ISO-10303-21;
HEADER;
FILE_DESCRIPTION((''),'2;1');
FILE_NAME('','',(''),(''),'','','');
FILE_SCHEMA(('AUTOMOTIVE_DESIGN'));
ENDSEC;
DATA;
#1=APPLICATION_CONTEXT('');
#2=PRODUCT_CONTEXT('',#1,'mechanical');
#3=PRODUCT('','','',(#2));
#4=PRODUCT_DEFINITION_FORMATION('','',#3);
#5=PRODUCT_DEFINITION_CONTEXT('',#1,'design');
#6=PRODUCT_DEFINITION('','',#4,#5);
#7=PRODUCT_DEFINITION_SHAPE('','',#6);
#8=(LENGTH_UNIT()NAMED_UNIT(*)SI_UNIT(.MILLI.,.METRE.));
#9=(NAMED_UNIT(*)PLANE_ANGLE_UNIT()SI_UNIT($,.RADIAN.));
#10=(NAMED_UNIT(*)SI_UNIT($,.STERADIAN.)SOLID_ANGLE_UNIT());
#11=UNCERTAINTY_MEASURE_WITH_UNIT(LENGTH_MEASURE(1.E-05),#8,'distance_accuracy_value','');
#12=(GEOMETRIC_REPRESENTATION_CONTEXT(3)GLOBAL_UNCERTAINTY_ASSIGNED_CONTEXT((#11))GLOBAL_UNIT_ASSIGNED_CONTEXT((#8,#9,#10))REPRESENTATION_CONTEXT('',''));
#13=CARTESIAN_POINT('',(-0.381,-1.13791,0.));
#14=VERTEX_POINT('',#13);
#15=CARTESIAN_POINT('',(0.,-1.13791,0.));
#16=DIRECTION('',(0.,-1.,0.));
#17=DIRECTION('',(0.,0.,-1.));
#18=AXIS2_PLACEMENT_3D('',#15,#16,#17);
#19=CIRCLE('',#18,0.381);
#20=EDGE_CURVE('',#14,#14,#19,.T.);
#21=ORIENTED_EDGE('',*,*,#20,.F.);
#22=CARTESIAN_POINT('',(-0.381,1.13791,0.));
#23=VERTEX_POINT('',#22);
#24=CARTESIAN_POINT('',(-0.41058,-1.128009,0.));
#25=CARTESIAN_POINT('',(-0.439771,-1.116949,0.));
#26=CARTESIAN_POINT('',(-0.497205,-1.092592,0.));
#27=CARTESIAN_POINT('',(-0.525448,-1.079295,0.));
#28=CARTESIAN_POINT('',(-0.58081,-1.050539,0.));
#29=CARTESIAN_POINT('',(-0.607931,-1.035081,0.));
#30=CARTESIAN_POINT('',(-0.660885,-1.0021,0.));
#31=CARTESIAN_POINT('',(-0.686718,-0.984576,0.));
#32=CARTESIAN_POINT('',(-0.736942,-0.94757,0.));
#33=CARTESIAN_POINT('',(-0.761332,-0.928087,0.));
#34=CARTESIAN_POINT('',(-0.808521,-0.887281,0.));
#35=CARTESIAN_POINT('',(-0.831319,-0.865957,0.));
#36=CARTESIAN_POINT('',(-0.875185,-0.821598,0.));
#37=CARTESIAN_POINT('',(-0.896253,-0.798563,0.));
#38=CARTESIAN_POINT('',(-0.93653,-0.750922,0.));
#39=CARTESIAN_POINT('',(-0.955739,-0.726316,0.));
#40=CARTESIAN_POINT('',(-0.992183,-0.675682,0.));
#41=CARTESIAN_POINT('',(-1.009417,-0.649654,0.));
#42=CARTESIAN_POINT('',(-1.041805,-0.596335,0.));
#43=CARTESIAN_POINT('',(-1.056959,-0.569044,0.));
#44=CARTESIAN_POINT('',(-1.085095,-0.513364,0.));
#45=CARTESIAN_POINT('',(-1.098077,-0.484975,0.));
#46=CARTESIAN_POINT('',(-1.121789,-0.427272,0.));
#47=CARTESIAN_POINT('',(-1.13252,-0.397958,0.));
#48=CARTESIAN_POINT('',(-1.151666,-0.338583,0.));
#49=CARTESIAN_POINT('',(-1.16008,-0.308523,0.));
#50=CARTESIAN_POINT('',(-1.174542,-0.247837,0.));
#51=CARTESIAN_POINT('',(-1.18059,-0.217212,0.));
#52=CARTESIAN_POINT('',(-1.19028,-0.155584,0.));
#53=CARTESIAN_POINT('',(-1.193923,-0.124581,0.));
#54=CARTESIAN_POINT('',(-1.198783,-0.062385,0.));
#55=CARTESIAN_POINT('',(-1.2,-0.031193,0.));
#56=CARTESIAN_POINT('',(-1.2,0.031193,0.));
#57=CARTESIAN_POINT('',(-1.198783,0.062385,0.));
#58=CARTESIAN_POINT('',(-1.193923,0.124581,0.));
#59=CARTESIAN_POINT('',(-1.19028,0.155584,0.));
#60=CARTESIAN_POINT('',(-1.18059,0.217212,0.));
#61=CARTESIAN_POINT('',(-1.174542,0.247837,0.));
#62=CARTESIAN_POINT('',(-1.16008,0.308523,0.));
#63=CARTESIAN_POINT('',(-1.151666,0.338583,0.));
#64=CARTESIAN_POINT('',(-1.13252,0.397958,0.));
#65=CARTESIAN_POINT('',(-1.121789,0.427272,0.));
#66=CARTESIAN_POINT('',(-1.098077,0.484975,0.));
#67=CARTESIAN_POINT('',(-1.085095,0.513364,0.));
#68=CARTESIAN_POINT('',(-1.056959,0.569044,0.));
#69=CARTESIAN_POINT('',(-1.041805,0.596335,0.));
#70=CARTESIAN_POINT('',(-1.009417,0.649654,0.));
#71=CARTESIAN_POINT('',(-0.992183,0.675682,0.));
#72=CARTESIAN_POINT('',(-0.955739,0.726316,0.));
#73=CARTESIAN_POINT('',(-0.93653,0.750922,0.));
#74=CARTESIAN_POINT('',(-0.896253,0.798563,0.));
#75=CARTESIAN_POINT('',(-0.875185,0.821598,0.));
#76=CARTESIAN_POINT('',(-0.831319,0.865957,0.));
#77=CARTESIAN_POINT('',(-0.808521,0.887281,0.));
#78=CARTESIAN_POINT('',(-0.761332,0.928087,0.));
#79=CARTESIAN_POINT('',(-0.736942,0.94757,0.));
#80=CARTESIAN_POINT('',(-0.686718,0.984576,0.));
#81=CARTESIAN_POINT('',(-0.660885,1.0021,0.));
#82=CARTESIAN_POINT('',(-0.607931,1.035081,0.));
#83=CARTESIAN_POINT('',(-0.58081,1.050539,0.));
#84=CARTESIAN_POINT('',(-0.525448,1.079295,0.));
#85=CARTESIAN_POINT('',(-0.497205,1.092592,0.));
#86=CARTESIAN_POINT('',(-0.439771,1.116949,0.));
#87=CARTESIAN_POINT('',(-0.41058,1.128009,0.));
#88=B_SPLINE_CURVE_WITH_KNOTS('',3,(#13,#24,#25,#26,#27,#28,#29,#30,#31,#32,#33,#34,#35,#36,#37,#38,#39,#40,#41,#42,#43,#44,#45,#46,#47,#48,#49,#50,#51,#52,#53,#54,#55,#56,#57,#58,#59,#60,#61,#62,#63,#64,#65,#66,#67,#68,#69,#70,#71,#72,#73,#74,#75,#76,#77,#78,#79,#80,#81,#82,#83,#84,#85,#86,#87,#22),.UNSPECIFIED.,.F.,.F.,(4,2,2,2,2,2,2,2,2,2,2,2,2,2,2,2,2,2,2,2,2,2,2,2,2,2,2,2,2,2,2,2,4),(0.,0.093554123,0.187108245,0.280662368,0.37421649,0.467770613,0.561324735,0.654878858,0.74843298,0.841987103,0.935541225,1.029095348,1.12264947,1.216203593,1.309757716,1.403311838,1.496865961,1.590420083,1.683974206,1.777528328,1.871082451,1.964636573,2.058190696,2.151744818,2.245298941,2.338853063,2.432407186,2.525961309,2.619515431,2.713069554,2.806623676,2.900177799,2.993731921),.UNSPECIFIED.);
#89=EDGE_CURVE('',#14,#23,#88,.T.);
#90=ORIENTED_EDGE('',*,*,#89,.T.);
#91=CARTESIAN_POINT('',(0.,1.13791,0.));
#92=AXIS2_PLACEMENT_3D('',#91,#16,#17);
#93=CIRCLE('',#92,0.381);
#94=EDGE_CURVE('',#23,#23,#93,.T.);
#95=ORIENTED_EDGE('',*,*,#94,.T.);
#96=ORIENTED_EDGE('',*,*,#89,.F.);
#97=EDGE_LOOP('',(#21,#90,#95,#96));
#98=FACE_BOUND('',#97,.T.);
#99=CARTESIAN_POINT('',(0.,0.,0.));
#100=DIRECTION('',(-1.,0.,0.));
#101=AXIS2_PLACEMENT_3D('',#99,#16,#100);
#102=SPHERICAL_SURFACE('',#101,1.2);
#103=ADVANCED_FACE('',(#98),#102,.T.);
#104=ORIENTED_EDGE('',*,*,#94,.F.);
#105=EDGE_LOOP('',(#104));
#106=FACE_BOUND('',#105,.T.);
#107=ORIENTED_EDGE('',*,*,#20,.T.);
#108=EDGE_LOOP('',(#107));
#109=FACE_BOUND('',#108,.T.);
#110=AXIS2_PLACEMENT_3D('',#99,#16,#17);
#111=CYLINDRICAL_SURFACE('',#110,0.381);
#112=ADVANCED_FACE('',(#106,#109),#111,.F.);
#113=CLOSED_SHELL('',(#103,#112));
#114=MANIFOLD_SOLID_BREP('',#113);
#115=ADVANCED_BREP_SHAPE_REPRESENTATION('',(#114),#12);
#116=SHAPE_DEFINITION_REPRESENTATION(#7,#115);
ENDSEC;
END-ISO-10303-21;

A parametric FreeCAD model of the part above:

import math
import FreeCAD as App
import Part
import Sketcher
from FreeCAD import Vector

doc = App.newDocument("Part")
body = doc.addObject("PartDesign::Body", "Body")

# Sketch on XY plane
sketch1 = body.newObject("Sketcher::SketchObject", "Sketch")
sketch1.AttachmentSupport = (doc.getObject("XY_Plane"), [""])
sketch1.MapMode = "FlatFace"
sketch1.addGeometry([
    Part.LineSegment(Vector(-0.381, -1.13791, 0), Vector(-0.381, 1.13791, 0)),
    Part.ArcOfCircle(Part.Circle(Vector(0, 0, 0), Vector(0, 0, 1), 1.2), math.radians(108.511803), math.radians(251.488197)),
], False)
sketch1.addConstraint([
    Sketcher.Constraint("Coincident", 0, 1, 1, 2),
    Sketcher.Constraint("Coincident", 1, 1, 0, 2),
    Sketcher.Constraint("Vertical", 0),
    Sketcher.Constraint("Coincident", 1, 3, -1, 1),
    Sketcher.Constraint("Radius", 1, 1.2),
    Sketcher.Constraint("DistanceX", 0, 1, -1, 1, 0.381),
])
revolution = body.newObject("PartDesign::Revolution", "Revolution")
revolution.Profile = sketch1
revolution.ReferenceAxis = (sketch1, ["V_Axis"])
revolution.Angle = 360

doc.recompute()
